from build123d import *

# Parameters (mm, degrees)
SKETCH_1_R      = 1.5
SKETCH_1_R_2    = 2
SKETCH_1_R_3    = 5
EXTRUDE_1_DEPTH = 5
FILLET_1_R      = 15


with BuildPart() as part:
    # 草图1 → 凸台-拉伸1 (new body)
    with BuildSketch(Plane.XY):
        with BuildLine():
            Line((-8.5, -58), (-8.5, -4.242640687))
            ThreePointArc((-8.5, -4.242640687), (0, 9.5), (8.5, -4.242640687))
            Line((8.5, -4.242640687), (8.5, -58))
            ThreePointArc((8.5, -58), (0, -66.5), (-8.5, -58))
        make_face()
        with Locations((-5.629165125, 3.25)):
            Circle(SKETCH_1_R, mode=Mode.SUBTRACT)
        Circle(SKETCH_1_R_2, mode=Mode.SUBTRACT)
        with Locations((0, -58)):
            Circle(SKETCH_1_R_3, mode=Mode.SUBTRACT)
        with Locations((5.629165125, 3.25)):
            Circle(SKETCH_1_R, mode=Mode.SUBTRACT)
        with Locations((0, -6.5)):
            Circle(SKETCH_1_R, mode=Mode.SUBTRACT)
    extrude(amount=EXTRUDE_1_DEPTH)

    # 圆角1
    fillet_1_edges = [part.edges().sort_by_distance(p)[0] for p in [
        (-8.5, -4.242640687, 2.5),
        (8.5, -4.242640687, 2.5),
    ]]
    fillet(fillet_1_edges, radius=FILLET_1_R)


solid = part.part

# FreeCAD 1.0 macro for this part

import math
import FreeCAD as App
import Part
import Sketcher
from FreeCAD import Vector


def edges_at(feature, points):
    """Names of the edges that pass closest to the given points."""
    edges = feature.Shape.Edges
    near = lambda p: min(range(len(edges)), key=lambda i: edges[i].distToShape(Part.Vertex(*p))[0])
    return sorted({f"Edge{near(p) + 1}" for p in points})

doc = App.newDocument("Part")
params = doc.addObject("Spreadsheet::Sheet", "Params")
for row, (alias, value) in enumerate([
    ("sketch1_diameter", "10 mm"),
    ("sketch1_diameter2", "3 mm"),
    ("sketch1_diameter3", "4 mm"),
    ("sketch1_radius", "8.5 mm"),
    ("sketch1_radius2", "9.5 mm"),
    ("pad1_length", "5 mm"),
    ("fillet_radius", "15 mm"),
], start=1):
    params.set(f"A{row}", alias)
    params.set(f"B{row}", "=" + value)
    params.setAlias(f"B{row}", alias)

body = doc.addObject("PartDesign::Body", "Body")

# Sketch on XY plane
sketch1 = doc.addObject("Sketcher::SketchObject", "Sketch")
body.addObject(sketch1)
sketch1.AttachmentSupport = (doc.XY_Plane, [""])
sketch1.MapMode = "FlatFace"
sketch1.addGeometry(Part.LineSegment(Vector(-8.5, -4.2, 0), Vector(-8.5, -58, 0)), False)
sketch1.addGeometry(Part.ArcOfCircle(Part.Circle(Vector(0, -58, 0), Vector(0, 0, 1), 8.5), math.radians(180), math.radians(360)), False)
sketch1.addGeometry(Part.LineSegment(Vector(8.5, -58, 0), Vector(8.5, -4.2, 0)), False)
sketch1.addGeometry(Part.ArcOfCircle(Part.Circle(Vector(0, 0, 0), Vector(0, 0, 1), 9.5), math.radians(-27), math.radians(207)), False)
sketch1.addGeometry(Part.Circle(Vector(0, -58, 0), Vector(0, 0, 1), 5), False)
sketch1.addGeometry(Part.Circle(Vector(5.6, 3.2, 0), Vector(0, 0, 1), 1.5), False)
sketch1.addGeometry(Part.Circle(Vector(0, -6.5, 0), Vector(0, 0, 1), 1.5), False)
sketch1.addGeometry(Part.Circle(Vector(0, 0, 0), Vector(0, 0, 1), 2), False)
sketch1.addGeometry(Part.Circle(Vector(-5.6, 3.2, 0), Vector(0, 0, 1), 1.5), False)
sketch1.addConstraint(Sketcher.Constraint("Tangent", 0, 2, 1, 1))
sketch1.addConstraint(Sketcher.Constraint("Tangent", 1, 2, 2, 1))
sketch1.addConstraint(Sketcher.Constraint("Coincident", 2, 2, 3, 1))
sketch1.addConstraint(Sketcher.Constraint("Coincident", 3, 2, 0, 1))
sketch1.addConstraint(Sketcher.Constraint("Vertical", 0))
sketch1.addConstraint(Sketcher.Constraint("Vertical", 2))
sketch1.addConstraint(Sketcher.Constraint("Coincident", 3, 3, -1, 1))
sketch1.addConstraint(Sketcher.Constraint("Coincident", 7, 3, -1, 1))
sketch1.addConstraint(Sketcher.Constraint("Coincident", 4, 3, 1, 3))
sketch1.addConstraint(Sketcher.Constraint("Equal", 5, 6))
sketch1.addConstraint(Sketcher.Constraint("Equal", 6, 8))
sketch1.addConstraint(Sketcher.Constraint("Symmetric", 5, 3, 8, 3, -2))
sketch1.addConstraint(Sketcher.Constraint("PointOnObject", 1, 3, -2))
sketch1.addConstraint(Sketcher.Constraint("PointOnObject", 6, 3, -2))
sketch1.addConstraint(Sketcher.Constraint("Diameter", 4, 10.0))
sketch1.addConstraint(Sketcher.Constraint("Diameter", 5, 3.0))
sketch1.addConstraint(Sketcher.Constraint("Diameter", 7, 4.0))
sketch1.addConstraint(Sketcher.Constraint("Radius", 1, 8.5))
sketch1.addConstraint(Sketcher.Constraint("Radius", 3, 9.5))
sketch1.addConstraint(Sketcher.Constraint("DistanceY", 1, 3, -1, 1, 58.0))
sketch1.addConstraint(Sketcher.Constraint("DistanceY", 6, 3, -1, 1, 6.5))
sketch1.addConstraint(Sketcher.Constraint("DistanceY", -1, 1, 5, 3, 3.25))
sketch1.addConstraint(Sketcher.Constraint("DistanceX", 8, 3, 5, 3, 11.25833))
sketch1.setExpression("Constraints[14]", "Params.sketch1_diameter")
sketch1.setExpression("Constraints[15]", "Params.sketch1_diameter2")
sketch1.setExpression("Constraints[16]", "Params.sketch1_diameter3")
sketch1.setExpression("Constraints[17]", "Params.sketch1_radius")
sketch1.setExpression("Constraints[18]", "Params.sketch1_radius2")
pad1 = doc.addObject("PartDesign::Pad", "Pad")
body.addObject(pad1)
pad1.Profile = sketch1
pad1.setExpression("Length", "Params.pad1_length")
doc.recompute()

fillet = doc.addObject("PartDesign::Fillet", "Fillet")
body.addObject(fillet)
fillet.Base = (pad1, edges_at(pad1, [(-8.5, -4.243, 2.5), (8.5, -4.243, 2.5)]))
fillet.setExpression("Radius", "Params.fillet_radius")

doc.recompute()
